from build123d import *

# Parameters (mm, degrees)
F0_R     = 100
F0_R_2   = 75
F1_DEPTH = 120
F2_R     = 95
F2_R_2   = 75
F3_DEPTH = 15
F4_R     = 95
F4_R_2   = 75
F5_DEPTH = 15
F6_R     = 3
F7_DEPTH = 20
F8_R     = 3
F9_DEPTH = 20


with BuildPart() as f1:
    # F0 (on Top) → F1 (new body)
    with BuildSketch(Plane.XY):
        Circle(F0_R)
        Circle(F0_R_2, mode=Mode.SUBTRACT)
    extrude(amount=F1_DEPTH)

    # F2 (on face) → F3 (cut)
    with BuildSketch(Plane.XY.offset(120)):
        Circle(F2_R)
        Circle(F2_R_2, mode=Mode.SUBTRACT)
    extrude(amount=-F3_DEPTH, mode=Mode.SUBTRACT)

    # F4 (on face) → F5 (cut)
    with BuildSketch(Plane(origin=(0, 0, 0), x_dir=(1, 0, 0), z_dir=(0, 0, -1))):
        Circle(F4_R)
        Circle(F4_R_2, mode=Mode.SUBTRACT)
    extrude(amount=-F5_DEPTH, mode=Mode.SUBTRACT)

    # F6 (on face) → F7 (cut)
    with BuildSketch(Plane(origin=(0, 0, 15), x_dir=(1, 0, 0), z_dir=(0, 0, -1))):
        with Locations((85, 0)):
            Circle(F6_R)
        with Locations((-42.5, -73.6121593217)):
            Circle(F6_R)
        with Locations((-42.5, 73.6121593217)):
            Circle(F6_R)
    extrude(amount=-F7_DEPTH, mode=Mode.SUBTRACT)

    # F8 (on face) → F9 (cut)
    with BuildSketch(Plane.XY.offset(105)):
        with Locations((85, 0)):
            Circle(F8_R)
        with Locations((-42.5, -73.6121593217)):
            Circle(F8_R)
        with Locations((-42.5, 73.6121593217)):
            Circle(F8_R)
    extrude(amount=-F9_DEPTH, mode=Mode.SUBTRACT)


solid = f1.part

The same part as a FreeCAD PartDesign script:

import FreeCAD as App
import Part
import Sketcher
from FreeCAD import Vector
Q = App.Units.Quantity

doc = App.newDocument("Part")
body = doc.addObject("PartDesign::Body", "Body")

# Sketch on XY plane
sketch1 = doc.addObject("Sketcher::SketchObject", "Sketch")
body.addObject(sketch1)
sketch1.AttachmentSupport = (doc.XY_Plane, [""])
sketch1.MapMode = "FlatFace"
sketch1.addGeometry([
    Part.Circle(Vector(0, 0, 0), Vector(0, 0, 1), 100),
    Part.Circle(Vector(0, 0, 0), Vector(0, 0, 1), 75),
], False)
sketch1.addConstraint([
    Sketcher.Constraint("Coincident", 0, 3, -1, 1),
    Sketcher.Constraint("Coincident", 1, 3, -1, 1),
    Sketcher.Constraint("Diameter", 0, Q("200 mm")),
    Sketcher.Constraint("Diameter", 1, Q("150 mm")),
])
pad1 = doc.addObject("PartDesign::Pad", "Pad")
body.addObject(pad1)
pad1.Profile = sketch1
pad1.Length = 120

# Sketch on XY plane
sketch2 = doc.addObject("Sketcher::SketchObject", "Sketch001")
body.addObject(sketch2)
sketch2.AttachmentSupport = (doc.XY_Plane, [""])
sketch2.MapMode = "FlatFace"
sketch2.AttachmentOffset = App.Placement(Vector(0, 0, 120), App.Rotation())
sketch2.addGeometry([
    Part.Circle(Vector(0, 0, 0), Vector(0, 0, 1), 95),
    Part.Circle(Vector(0, 0, 0), Vector(0, 0, 1), 75),
], False)
sketch2.addConstraint([
    Sketcher.Constraint("Coincident", 0, 3, -1, 1),
    Sketcher.Constraint("Coincident", 1, 3, -1, 1),
    Sketcher.Constraint("Diameter", 0, Q("190 mm")),
    Sketcher.Constraint("Diameter", 1, Q("150 mm")),
])
pocket1 = doc.addObject("PartDesign::Pocket", "Pocket")
body.addObject(pocket1)
pocket1.Profile = sketch2
pocket1.Length = 15

# Sketch on XY plane
sketch3 = doc.addObject("Sketcher::SketchObject", "Sketch002")
body.addObject(sketch3)
sketch3.AttachmentSupport = (doc.XY_Plane, [""])
sketch3.MapMode = "FlatFace"
sketch3.addGeometry([
    Part.Circle(Vector(0, 0, 0), Vector(0, 0, 1), 95),
    Part.Circle(Vector(0, 0, 0), Vector(0, 0, 1), 75),
], False)
sketch3.addConstraint([
    Sketcher.Constraint("Coincident", 0, 3, -1, 1),
    Sketcher.Constraint("Coincident", 1, 3, -1, 1),
    Sketcher.Constraint("Diameter", 0, Q("190 mm")),
    Sketcher.Constraint("Diameter", 1, Q("150 mm")),
])
pocket2 = doc.addObject("PartDesign::Pocket", "Pocket001")
body.addObject(pocket2)
pocket2.Profile = sketch3
pocket2.Length = 15
pocket2.Reversed = True

# Sketch on XY plane
sketch4 = doc.addObject("Sketcher::SketchObject", "Sketch003")
body.addObject(sketch4)
sketch4.AttachmentSupport = (doc.XY_Plane, [""])
sketch4.MapMode = "FlatFace"
sketch4.AttachmentOffset = App.Placement(Vector(0, 0, 15), App.Rotation())
sketch4.addGeometry([
    Part.Circle(Vector(85, 0, 0), Vector(0, 0, 1), 3),
    Part.Circle(Vector(-42.5, 73.6, 0), Vector(0, 0, 1), 3),
    Part.Circle(Vector(-42.5, -73.6, 0), Vector(0, 0, 1), 3),
], False)
sketch4.addConstraint([
    Sketcher.Constraint("Equal", 0, 1),
    Sketcher.Constraint("Equal", 1, 2),
    Sketcher.Constraint("Symmetric", 1, 3, 2, 3, -1),
    Sketcher.Constraint("PointOnObject", 0, 3, -1),
    Sketcher.Constraint("Diameter", 0, Q("6 mm")),
    Sketcher.Constraint("DistanceX", -1, 1, 0, 3, Q("85 mm")),
    Sketcher.Constraint("DistanceX", 1, 3, -1, 1, Q("42.5 mm")),
    Sketcher.Constraint("DistanceY", -1, 1, 1, 3, Q("73.612159 mm")),
])
pocket3 = doc.addObject("PartDesign::Pocket", "Pocket002")
body.addObject(pocket3)
pocket3.Profile = sketch4
pocket3.Length = 20
pocket3.Reversed = True

# Sketch on XY plane
sketch5 = doc.addObject("Sketcher::SketchObject", "Sketch004")
body.addObject(sketch5)
sketch5.AttachmentSupport = (doc.XY_Plane, [""])
sketch5.MapMode = "FlatFace"
sketch5.AttachmentOffset = App.Placement(Vector(0, 0, 105), App.Rotation())
sketch5.addGeometry([
    Part.Circle(Vector(85, 0, 0), Vector(0, 0, 1), 3),
    Part.Circle(Vector(-42.5, -73.6, 0), Vector(0, 0, 1), 3),
    Part.Circle(Vector(-42.5, 73.6, 0), Vector(0, 0, 1), 3),
], False)
sketch5.addConstraint([
    Sketcher.Constraint("Equal", 0, 1),
    Sketcher.Constraint("Equal", 1, 2),
    Sketcher.Constraint("Symmetric", 1, 3, 2, 3, -1),
    Sketcher.Constraint("PointOnObject", 0, 3, -1),
    Sketcher.Constraint("Diameter", 0, Q("6 mm")),
    Sketcher.Constraint("DistanceX", -1, 1, 0, 3, Q("85 mm")),
    Sketcher.Constraint("DistanceX", 1, 3, -1, 1, Q("42.5 mm")),
    Sketcher.Constraint("DistanceY", 1, 3, -1, 1, Q("73.612159 mm")),
])
pocket4 = doc.addObject("PartDesign::Pocket", "Pocket003")
body.addObject(pocket4)
pocket4.Profile = sketch5
pocket4.Length = 20

doc.recompute()
